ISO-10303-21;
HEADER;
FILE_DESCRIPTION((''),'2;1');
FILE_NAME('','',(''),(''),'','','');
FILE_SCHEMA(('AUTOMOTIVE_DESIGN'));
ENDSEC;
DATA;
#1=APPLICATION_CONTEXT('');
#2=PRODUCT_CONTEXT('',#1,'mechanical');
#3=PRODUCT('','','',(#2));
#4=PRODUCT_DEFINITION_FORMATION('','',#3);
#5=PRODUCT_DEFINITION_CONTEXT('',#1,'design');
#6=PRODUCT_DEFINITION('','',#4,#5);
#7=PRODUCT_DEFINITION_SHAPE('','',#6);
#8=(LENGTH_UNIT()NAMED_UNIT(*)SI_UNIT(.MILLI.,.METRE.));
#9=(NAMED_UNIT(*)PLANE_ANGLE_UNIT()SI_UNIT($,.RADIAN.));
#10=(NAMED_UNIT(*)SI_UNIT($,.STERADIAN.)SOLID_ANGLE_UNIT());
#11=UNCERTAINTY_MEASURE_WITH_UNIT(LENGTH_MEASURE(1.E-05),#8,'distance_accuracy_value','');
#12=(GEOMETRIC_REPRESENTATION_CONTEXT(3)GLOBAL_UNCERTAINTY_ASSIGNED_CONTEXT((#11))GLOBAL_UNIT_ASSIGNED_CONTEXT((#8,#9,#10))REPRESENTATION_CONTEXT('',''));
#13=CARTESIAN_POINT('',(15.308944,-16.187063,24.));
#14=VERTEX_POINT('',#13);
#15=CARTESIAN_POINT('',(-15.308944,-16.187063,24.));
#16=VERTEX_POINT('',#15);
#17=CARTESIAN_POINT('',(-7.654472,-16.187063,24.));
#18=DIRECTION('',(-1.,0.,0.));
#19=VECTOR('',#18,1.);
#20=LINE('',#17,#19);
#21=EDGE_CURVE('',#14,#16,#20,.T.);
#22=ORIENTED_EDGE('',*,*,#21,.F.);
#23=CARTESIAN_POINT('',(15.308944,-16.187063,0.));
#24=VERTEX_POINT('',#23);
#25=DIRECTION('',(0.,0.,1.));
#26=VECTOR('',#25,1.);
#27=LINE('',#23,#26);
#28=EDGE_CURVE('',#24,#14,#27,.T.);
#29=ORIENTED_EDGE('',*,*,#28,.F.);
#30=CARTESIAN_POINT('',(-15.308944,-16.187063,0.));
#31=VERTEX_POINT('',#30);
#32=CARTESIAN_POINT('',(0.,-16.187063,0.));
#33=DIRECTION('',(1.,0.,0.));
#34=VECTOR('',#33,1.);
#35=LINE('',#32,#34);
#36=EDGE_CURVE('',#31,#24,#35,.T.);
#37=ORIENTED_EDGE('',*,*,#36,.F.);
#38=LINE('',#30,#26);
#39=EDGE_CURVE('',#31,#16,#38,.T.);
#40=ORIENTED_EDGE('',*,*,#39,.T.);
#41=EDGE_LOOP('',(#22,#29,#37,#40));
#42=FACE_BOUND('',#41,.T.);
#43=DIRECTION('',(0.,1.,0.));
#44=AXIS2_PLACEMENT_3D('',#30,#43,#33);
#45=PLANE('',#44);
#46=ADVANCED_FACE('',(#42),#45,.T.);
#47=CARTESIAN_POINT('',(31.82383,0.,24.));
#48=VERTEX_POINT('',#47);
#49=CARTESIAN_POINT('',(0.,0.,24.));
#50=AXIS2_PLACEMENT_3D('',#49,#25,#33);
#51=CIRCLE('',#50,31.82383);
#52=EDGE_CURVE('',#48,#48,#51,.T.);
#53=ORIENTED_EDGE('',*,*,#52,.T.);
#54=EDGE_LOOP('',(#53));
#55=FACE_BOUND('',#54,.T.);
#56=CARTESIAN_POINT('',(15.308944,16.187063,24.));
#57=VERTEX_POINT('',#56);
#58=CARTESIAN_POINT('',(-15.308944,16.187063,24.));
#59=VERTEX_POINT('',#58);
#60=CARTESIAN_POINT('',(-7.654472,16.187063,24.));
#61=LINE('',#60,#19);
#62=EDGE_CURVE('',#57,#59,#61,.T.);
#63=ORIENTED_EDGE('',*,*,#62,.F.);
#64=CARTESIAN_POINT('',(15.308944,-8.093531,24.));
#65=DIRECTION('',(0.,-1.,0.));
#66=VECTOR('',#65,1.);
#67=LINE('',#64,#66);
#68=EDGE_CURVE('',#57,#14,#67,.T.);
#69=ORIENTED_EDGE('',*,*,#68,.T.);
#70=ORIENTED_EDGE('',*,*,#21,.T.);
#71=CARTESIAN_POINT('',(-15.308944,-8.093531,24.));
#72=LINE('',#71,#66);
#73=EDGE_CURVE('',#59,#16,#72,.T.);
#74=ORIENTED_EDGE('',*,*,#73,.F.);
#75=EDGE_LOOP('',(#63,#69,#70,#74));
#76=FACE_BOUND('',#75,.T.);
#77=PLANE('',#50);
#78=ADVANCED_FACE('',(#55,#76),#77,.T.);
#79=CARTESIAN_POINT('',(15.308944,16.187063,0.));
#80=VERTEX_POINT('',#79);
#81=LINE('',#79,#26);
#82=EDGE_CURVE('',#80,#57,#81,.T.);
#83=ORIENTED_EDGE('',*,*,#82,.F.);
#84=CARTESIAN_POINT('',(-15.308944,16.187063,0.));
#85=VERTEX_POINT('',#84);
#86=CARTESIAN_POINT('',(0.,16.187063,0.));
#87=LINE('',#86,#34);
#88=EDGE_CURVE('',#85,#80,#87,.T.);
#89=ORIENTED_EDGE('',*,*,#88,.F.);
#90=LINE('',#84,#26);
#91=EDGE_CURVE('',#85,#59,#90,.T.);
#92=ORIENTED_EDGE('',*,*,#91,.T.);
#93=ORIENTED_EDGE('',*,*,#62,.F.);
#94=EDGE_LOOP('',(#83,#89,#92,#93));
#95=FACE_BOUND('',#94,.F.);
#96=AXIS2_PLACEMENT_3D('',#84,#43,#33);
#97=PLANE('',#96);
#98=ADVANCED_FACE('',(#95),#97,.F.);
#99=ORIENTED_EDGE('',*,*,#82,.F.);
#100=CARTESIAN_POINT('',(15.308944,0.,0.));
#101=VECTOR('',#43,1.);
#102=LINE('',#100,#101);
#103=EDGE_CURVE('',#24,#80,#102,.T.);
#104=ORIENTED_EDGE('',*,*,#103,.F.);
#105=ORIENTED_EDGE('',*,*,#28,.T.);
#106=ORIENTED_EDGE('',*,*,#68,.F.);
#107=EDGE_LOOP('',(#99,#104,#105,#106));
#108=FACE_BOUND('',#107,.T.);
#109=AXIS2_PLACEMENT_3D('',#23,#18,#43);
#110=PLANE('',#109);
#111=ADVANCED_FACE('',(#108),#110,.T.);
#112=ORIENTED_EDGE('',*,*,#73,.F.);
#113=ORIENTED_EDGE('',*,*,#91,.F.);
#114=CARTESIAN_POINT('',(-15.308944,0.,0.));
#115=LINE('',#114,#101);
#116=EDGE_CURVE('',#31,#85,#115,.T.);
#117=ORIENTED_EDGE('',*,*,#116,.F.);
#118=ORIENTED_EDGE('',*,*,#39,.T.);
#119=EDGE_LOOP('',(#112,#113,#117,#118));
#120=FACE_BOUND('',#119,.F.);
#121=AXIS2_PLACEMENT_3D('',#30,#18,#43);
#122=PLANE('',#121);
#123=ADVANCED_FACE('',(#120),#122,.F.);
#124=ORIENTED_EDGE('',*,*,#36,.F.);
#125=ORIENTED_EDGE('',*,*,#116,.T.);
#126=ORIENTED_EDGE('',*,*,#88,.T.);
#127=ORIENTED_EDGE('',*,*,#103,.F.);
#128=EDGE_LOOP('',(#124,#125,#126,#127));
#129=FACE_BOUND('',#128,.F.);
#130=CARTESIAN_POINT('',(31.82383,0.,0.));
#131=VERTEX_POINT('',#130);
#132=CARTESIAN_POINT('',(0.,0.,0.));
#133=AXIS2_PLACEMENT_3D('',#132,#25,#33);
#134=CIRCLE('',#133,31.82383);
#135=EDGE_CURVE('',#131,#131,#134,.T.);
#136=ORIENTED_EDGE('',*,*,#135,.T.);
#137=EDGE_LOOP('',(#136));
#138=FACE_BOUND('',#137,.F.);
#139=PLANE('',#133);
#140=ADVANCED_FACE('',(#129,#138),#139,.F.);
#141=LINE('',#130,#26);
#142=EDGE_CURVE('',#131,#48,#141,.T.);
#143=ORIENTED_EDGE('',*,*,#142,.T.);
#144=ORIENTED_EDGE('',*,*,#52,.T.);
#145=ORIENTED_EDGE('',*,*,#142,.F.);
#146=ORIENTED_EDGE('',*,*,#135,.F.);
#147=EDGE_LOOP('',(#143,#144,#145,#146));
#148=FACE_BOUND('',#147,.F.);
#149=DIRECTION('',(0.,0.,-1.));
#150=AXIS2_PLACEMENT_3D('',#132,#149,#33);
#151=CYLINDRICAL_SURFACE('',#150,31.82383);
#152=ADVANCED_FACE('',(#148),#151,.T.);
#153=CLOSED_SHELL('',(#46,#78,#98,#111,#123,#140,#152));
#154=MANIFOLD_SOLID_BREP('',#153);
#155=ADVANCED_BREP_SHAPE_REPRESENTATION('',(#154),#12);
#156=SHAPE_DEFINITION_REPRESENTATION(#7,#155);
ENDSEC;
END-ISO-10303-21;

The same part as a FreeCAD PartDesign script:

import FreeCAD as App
import Part
import Sketcher
from FreeCAD import Vector
Q = App.Units.Quantity


def add_polygon(sketch, points):
    """Adds a closed chain of lines whose ends are joined by coincident constraints."""
    first, n = sketch.GeometryCount, len(points)
    for a, b in zip(points, points[1:] + points[:1]):
        sketch.addGeometry(Part.LineSegment(App.Vector(*a, 0), App.Vector(*b, 0)), False)
    for i in range(n):
        sketch.addConstraint(Sketcher.Constraint("Coincident", first + i, 2, first + (i + 1) % n, 1))

doc = App.newDocument("Part")
params = doc.addObject("Spreadsheet::Sheet", "Params")
for row, (alias, value) in enumerate([
    ("pad1_length", "25 mm"),
    ("pad2_length", "24 mm"),
], start=1):
    params.set(f"A{row}", alias)
    params.set(f"B{row}", "=" + value)
    params.setAlias(f"B{row}", alias)

body = doc.addObject("PartDesign::Body", "Body")

# Sketch on XY plane
sketch1 = body.newObject("Sketcher::SketchObject", "Sketch")
sketch1.AttachmentSupport = (doc.getObject("XY_Plane"), [""])
sketch1.MapMode = "FlatFace"
add_polygon(sketch1, [(-15, 16), (-15, -16), (15, -16), (15, 16)])  # lines 0-3
sketch1.addConstraint([
    Sketcher.Constraint("Vertical", 0),
    Sketcher.Constraint("Horizontal", 1),
    Sketcher.Constraint("Vertical", 2),
    Sketcher.Constraint("Horizontal", 3),
    Sketcher.Constraint("Symmetric", 0, 2, 2, 2, -1, 1),
    Sketcher.Constraint("DistanceX", 1, 1, 1, 2, Q("30.617888 mm")),
    Sketcher.Constraint("DistanceY", 0, 2, 0, 1, Q("32.374126 mm")),
])
pad1 = body.newObject("PartDesign::Pad", "Pad")
pad1.Profile = sketch1
pad1.setExpression("Length", "Params.pad1_length")
body2 = doc.addObject("PartDesign::Body", "Body001")

# Sketch on XY plane
sketch2 = body2.newObject("Sketcher::SketchObject", "Sketch001")
sketch2.AttachmentSupport = (doc.getObject("XY_Plane001"), [""])
sketch2.MapMode = "FlatFace"
sketch2.addGeometry(Part.Circle(Vector(0, 0, 0), Vector(0, 0, 1), 32), False)
sketch2.addConstraint([
    Sketcher.Constraint("Coincident", 0, 3, -1, 1),
    Sketcher.Constraint("Diameter", 0, Q("63.64766 mm")),
])
pad2 = body2.newObject("PartDesign::Pad", "Pad001")
pad2.Profile = sketch2
pad2.setExpression("Length", "Params.pad2_length")
doc.recompute()

boolean = body2.newObject("PartDesign::Boolean", "Boolean")
boolean.Type = "Cut"
boolean.addObjects([body])

doc.recompute()
